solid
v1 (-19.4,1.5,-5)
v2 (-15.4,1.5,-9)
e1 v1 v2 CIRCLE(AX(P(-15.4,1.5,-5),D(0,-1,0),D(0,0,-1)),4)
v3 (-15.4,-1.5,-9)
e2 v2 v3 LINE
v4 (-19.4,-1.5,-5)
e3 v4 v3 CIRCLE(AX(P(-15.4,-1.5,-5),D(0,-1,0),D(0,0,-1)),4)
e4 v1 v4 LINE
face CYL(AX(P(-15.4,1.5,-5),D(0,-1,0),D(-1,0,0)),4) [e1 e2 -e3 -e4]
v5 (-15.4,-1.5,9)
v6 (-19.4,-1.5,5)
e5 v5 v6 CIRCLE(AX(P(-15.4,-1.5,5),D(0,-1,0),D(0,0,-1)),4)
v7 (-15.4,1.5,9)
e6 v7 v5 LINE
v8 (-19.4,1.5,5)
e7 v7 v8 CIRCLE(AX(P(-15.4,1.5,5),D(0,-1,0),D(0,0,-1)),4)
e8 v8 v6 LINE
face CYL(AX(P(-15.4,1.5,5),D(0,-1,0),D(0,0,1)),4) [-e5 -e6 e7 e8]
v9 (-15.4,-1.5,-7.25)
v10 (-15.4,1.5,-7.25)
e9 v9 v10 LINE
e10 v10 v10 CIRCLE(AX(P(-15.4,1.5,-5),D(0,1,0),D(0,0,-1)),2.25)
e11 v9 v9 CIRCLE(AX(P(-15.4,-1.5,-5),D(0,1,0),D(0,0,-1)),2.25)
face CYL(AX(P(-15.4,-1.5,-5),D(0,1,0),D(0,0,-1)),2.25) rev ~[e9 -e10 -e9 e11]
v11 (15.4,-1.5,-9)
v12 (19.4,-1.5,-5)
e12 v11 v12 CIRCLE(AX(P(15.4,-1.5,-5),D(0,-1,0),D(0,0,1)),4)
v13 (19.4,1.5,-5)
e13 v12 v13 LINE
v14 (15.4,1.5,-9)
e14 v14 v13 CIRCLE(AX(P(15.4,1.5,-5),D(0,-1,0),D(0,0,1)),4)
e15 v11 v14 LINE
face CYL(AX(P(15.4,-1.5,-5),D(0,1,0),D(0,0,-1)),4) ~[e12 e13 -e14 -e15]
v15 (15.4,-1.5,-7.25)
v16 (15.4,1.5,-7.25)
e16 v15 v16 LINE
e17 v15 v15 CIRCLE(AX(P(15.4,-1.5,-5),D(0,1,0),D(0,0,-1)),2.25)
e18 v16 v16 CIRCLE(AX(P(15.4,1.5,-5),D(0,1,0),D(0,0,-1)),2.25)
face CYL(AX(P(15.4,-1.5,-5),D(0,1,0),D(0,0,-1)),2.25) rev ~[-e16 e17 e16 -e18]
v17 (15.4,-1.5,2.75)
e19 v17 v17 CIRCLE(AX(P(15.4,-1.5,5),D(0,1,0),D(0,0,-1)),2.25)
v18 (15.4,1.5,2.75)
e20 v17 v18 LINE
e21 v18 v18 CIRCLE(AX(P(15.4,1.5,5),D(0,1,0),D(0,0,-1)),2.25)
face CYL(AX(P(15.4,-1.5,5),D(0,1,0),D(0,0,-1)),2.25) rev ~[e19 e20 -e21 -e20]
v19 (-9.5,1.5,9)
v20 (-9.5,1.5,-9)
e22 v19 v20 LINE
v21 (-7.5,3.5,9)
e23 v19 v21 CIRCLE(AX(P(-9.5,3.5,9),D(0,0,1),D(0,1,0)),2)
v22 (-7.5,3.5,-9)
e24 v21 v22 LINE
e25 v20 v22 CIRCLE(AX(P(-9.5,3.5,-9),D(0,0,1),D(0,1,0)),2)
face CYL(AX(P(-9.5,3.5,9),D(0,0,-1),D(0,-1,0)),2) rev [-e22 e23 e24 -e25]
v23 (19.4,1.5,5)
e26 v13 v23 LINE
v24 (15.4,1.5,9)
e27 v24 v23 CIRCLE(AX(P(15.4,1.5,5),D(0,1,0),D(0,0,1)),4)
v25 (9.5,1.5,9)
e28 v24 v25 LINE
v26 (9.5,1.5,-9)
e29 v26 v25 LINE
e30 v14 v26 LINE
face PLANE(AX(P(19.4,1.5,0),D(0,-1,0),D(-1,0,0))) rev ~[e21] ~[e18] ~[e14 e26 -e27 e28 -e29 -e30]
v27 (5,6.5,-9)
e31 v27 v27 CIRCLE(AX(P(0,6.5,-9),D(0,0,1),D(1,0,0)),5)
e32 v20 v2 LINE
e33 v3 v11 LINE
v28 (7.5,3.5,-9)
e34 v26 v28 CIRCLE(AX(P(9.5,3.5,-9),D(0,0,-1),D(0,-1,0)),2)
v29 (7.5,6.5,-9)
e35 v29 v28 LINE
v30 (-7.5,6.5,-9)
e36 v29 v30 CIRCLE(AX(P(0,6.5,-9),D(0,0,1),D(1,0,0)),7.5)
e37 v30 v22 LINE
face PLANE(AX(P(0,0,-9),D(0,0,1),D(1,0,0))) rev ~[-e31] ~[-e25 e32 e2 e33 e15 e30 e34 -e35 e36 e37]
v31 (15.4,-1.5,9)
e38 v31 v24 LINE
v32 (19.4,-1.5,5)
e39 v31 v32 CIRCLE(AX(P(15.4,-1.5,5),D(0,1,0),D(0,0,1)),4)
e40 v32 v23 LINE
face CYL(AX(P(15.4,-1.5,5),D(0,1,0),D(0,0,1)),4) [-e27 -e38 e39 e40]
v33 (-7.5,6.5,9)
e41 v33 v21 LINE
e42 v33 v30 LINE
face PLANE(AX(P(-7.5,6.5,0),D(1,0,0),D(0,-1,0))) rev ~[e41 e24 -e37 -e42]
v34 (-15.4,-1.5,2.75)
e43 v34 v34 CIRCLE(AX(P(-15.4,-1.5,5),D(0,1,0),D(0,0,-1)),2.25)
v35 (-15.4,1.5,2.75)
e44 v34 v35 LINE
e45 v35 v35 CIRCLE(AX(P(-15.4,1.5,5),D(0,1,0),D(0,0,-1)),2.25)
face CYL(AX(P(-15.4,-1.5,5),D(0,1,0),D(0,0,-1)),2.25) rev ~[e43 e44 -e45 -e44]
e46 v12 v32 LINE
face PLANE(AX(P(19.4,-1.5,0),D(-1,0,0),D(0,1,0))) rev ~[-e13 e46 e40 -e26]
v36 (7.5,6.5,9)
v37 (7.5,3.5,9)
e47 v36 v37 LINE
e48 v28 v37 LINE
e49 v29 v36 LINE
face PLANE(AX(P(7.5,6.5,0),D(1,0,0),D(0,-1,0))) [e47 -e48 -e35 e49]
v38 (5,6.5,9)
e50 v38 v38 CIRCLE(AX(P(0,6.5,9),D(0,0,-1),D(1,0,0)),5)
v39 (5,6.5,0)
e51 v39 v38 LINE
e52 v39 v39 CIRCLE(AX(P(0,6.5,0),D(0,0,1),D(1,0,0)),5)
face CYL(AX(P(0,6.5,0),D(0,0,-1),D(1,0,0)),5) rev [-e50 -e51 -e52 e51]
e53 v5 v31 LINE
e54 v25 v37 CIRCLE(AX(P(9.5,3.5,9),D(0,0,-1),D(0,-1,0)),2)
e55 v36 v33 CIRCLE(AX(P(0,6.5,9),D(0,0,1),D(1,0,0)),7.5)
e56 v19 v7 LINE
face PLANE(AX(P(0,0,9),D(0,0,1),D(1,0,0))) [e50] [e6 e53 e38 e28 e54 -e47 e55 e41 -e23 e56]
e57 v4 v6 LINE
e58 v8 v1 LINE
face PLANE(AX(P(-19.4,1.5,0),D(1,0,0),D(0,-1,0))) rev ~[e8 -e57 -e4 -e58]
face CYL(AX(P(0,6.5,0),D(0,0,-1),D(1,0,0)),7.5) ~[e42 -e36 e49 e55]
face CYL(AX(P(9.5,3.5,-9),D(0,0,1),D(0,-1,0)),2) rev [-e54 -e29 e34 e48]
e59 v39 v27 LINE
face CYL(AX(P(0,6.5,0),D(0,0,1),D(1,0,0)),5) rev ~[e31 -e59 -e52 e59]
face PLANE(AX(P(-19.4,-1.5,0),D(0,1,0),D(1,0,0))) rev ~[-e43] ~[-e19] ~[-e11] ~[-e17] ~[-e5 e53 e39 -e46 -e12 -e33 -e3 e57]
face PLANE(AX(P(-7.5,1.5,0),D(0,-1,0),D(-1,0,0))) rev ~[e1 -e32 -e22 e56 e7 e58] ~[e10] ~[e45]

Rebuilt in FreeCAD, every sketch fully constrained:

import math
import FreeCAD as App
import Part
import Sketcher

V = App.Vector


def edges_at(feature, points):
    """Names of the edges that pass closest to the given points."""
    edges = feature.Shape.Edges
    near = lambda p: min(range(len(edges)), key=lambda i: edges[i].distToShape(Part.Vertex(*p))[0])
    return sorted({f"Edge{near(p) + 1}" for p in points})

doc = App.newDocument("Part")
body = doc.addObject("PartDesign::Body", "Body")

sketch1 = body.newObject("Sketcher::SketchObject", "Sketch")
sketch1.AttachmentSupport = (doc.getObject("XY_Plane"), [""])
sketch1.MapMode = "FlatFace"
sketch1.addGeometry([
    Part.LineSegment(V(-19.4, 1.5, 0), V(-19.4, -1.5, 0)),
    Part.LineSegment(V(-19.4, -1.5, 0), V(19.4, -1.5, 0)),
    Part.LineSegment(V(19.4, -1.5, 0), V(19.4, 1.5, 0)),
    Part.LineSegment(V(19.4, 1.5, 0), V(7.5, 1.5, 0)),
    Part.LineSegment(V(7.5, 1.5, 0), V(7.5, 6.5, 0)),
    Part.ArcOfCircle(Part.Circle(V(0, 6.5, 0), V(0, 0, 1), 7.5), math.radians(0), math.radians(180)),
    Part.LineSegment(V(-7.5, 6.5, 0), V(-7.5, 1.5, 0)),
    Part.LineSegment(V(-7.5, 1.5, 0), V(-19.4, 1.5, 0)),
    Part.Circle(V(0, 6.5, 0), V(0, 0, 1), 5),
], False)
sketch1.addConstraint([
    Sketcher.Constraint("Coincident", 0, 2, 1, 1),
    Sketcher.Constraint("Coincident", 1, 2, 2, 1),
    Sketcher.Constraint("Coincident", 2, 2, 3, 1),
    Sketcher.Constraint("Coincident", 3, 2, 4, 1),
    Sketcher.Constraint("Tangent", 4, 2, 5, 1),
    Sketcher.Constraint("Tangent", 5, 2, 6, 1),
    Sketcher.Constraint("Coincident", 6, 2, 7, 1),
    Sketcher.Constraint("Coincident", 7, 2, 0, 1),
    Sketcher.Constraint("Vertical", 0),
    Sketcher.Constraint("Horizontal", 1),
    Sketcher.Constraint("Vertical", 2),
    Sketcher.Constraint("Horizontal", 3),
    Sketcher.Constraint("Vertical", 4),
    Sketcher.Constraint("Vertical", 6),
    Sketcher.Constraint("Horizontal", 7),
    Sketcher.Constraint("Coincident", 8, 3, 5, 3),
    Sketcher.Constraint("Symmetric", 0, 2, 2, 2, -1, 1),
    Sketcher.Constraint("Symmetric", 3, 2, 6, 2, -2),
    Sketcher.Constraint("Diameter", 8, 10.0),
    Sketcher.Constraint("Radius", 5, 7.5),
    Sketcher.Constraint("DistanceY", 0, 2, 0, 1, 3.0),
    Sketcher.Constraint("DistanceX", 1, 1, 1, 2, 38.8),
    Sketcher.Constraint("DistanceY", 4, 1, 4, 2, 5.0),
])
pad1 = body.newObject("PartDesign::Pad", "Pad")
pad1.Profile = sketch1
pad1.Length = 18
pad1.Midplane = True
doc.recompute()

fillet = body.newObject("PartDesign::Fillet", "Fillet")
fillet.Base = (pad1, edges_at(pad1, [(7.5, 1.5, 0), (-7.5, 1.5, 0)]))
fillet.Radius = 2

sketch2 = body.newObject("Sketcher::SketchObject", "Sketch001")
sketch2.AttachmentSupport = (doc.getObject("XZ_Plane"), [""])
sketch2.MapMode = "FlatFace"
sketch2.AttachmentOffset = App.Placement(V(0, 0, 1.5), App.Rotation())
sketch2.addGeometry([
    Part.Circle(V(15.4, 5, 0), V(0, 0, 1), 2.2),
    Part.Circle(V(15.4, -5, 0), V(0, 0, 1), 2.2),
    Part.Circle(V(-15.4, 5, 0), V(0, 0, 1), 2.2),
    Part.Circle(V(-15.4, -5, 0), V(0, 0, 1), 2.2),
], False)
sketch2.addConstraint([
    Sketcher.Constraint("Equal", 0, 1),
    Sketcher.Constraint("Equal", 1, 2),
    Sketcher.Constraint("Equal", 2, 3),
    Sketcher.Constraint("Symmetric", 1, 3, 2, 3, -1, 1),
    Sketcher.Constraint("Symmetric", 0, 3, 3, 3, -1, 1),
    Sketcher.Constraint("Symmetric", 0, 3, 2, 3, -2),
    Sketcher.Constraint("Diameter", 0, 4.5),
    Sketcher.Constraint("DistanceY", -1, 1, 0, 3, 5.0),
    Sketcher.Constraint("DistanceX", -1, 1, 0, 3, 15.4),
])
doc.recompute()
hole = body.newObject("PartDesign::Hole", "Hole")
hole.Profile = sketch2
hole.ThreadType = "None"
hole.Diameter = 4.5
hole.DepthType = "ThroughAll"
doc.recompute()

fillet2 = body.newObject("PartDesign::Fillet", "Fillet001")
fillet2.Base = (hole, edges_at(hole, [
    (-19.4, 0, -9),
    (-19.4, 0, 9),
    (19.4, 0, -9),
    (19.4, 0, 9),
]))
fillet2.Radius = 4

doc.recompute()
